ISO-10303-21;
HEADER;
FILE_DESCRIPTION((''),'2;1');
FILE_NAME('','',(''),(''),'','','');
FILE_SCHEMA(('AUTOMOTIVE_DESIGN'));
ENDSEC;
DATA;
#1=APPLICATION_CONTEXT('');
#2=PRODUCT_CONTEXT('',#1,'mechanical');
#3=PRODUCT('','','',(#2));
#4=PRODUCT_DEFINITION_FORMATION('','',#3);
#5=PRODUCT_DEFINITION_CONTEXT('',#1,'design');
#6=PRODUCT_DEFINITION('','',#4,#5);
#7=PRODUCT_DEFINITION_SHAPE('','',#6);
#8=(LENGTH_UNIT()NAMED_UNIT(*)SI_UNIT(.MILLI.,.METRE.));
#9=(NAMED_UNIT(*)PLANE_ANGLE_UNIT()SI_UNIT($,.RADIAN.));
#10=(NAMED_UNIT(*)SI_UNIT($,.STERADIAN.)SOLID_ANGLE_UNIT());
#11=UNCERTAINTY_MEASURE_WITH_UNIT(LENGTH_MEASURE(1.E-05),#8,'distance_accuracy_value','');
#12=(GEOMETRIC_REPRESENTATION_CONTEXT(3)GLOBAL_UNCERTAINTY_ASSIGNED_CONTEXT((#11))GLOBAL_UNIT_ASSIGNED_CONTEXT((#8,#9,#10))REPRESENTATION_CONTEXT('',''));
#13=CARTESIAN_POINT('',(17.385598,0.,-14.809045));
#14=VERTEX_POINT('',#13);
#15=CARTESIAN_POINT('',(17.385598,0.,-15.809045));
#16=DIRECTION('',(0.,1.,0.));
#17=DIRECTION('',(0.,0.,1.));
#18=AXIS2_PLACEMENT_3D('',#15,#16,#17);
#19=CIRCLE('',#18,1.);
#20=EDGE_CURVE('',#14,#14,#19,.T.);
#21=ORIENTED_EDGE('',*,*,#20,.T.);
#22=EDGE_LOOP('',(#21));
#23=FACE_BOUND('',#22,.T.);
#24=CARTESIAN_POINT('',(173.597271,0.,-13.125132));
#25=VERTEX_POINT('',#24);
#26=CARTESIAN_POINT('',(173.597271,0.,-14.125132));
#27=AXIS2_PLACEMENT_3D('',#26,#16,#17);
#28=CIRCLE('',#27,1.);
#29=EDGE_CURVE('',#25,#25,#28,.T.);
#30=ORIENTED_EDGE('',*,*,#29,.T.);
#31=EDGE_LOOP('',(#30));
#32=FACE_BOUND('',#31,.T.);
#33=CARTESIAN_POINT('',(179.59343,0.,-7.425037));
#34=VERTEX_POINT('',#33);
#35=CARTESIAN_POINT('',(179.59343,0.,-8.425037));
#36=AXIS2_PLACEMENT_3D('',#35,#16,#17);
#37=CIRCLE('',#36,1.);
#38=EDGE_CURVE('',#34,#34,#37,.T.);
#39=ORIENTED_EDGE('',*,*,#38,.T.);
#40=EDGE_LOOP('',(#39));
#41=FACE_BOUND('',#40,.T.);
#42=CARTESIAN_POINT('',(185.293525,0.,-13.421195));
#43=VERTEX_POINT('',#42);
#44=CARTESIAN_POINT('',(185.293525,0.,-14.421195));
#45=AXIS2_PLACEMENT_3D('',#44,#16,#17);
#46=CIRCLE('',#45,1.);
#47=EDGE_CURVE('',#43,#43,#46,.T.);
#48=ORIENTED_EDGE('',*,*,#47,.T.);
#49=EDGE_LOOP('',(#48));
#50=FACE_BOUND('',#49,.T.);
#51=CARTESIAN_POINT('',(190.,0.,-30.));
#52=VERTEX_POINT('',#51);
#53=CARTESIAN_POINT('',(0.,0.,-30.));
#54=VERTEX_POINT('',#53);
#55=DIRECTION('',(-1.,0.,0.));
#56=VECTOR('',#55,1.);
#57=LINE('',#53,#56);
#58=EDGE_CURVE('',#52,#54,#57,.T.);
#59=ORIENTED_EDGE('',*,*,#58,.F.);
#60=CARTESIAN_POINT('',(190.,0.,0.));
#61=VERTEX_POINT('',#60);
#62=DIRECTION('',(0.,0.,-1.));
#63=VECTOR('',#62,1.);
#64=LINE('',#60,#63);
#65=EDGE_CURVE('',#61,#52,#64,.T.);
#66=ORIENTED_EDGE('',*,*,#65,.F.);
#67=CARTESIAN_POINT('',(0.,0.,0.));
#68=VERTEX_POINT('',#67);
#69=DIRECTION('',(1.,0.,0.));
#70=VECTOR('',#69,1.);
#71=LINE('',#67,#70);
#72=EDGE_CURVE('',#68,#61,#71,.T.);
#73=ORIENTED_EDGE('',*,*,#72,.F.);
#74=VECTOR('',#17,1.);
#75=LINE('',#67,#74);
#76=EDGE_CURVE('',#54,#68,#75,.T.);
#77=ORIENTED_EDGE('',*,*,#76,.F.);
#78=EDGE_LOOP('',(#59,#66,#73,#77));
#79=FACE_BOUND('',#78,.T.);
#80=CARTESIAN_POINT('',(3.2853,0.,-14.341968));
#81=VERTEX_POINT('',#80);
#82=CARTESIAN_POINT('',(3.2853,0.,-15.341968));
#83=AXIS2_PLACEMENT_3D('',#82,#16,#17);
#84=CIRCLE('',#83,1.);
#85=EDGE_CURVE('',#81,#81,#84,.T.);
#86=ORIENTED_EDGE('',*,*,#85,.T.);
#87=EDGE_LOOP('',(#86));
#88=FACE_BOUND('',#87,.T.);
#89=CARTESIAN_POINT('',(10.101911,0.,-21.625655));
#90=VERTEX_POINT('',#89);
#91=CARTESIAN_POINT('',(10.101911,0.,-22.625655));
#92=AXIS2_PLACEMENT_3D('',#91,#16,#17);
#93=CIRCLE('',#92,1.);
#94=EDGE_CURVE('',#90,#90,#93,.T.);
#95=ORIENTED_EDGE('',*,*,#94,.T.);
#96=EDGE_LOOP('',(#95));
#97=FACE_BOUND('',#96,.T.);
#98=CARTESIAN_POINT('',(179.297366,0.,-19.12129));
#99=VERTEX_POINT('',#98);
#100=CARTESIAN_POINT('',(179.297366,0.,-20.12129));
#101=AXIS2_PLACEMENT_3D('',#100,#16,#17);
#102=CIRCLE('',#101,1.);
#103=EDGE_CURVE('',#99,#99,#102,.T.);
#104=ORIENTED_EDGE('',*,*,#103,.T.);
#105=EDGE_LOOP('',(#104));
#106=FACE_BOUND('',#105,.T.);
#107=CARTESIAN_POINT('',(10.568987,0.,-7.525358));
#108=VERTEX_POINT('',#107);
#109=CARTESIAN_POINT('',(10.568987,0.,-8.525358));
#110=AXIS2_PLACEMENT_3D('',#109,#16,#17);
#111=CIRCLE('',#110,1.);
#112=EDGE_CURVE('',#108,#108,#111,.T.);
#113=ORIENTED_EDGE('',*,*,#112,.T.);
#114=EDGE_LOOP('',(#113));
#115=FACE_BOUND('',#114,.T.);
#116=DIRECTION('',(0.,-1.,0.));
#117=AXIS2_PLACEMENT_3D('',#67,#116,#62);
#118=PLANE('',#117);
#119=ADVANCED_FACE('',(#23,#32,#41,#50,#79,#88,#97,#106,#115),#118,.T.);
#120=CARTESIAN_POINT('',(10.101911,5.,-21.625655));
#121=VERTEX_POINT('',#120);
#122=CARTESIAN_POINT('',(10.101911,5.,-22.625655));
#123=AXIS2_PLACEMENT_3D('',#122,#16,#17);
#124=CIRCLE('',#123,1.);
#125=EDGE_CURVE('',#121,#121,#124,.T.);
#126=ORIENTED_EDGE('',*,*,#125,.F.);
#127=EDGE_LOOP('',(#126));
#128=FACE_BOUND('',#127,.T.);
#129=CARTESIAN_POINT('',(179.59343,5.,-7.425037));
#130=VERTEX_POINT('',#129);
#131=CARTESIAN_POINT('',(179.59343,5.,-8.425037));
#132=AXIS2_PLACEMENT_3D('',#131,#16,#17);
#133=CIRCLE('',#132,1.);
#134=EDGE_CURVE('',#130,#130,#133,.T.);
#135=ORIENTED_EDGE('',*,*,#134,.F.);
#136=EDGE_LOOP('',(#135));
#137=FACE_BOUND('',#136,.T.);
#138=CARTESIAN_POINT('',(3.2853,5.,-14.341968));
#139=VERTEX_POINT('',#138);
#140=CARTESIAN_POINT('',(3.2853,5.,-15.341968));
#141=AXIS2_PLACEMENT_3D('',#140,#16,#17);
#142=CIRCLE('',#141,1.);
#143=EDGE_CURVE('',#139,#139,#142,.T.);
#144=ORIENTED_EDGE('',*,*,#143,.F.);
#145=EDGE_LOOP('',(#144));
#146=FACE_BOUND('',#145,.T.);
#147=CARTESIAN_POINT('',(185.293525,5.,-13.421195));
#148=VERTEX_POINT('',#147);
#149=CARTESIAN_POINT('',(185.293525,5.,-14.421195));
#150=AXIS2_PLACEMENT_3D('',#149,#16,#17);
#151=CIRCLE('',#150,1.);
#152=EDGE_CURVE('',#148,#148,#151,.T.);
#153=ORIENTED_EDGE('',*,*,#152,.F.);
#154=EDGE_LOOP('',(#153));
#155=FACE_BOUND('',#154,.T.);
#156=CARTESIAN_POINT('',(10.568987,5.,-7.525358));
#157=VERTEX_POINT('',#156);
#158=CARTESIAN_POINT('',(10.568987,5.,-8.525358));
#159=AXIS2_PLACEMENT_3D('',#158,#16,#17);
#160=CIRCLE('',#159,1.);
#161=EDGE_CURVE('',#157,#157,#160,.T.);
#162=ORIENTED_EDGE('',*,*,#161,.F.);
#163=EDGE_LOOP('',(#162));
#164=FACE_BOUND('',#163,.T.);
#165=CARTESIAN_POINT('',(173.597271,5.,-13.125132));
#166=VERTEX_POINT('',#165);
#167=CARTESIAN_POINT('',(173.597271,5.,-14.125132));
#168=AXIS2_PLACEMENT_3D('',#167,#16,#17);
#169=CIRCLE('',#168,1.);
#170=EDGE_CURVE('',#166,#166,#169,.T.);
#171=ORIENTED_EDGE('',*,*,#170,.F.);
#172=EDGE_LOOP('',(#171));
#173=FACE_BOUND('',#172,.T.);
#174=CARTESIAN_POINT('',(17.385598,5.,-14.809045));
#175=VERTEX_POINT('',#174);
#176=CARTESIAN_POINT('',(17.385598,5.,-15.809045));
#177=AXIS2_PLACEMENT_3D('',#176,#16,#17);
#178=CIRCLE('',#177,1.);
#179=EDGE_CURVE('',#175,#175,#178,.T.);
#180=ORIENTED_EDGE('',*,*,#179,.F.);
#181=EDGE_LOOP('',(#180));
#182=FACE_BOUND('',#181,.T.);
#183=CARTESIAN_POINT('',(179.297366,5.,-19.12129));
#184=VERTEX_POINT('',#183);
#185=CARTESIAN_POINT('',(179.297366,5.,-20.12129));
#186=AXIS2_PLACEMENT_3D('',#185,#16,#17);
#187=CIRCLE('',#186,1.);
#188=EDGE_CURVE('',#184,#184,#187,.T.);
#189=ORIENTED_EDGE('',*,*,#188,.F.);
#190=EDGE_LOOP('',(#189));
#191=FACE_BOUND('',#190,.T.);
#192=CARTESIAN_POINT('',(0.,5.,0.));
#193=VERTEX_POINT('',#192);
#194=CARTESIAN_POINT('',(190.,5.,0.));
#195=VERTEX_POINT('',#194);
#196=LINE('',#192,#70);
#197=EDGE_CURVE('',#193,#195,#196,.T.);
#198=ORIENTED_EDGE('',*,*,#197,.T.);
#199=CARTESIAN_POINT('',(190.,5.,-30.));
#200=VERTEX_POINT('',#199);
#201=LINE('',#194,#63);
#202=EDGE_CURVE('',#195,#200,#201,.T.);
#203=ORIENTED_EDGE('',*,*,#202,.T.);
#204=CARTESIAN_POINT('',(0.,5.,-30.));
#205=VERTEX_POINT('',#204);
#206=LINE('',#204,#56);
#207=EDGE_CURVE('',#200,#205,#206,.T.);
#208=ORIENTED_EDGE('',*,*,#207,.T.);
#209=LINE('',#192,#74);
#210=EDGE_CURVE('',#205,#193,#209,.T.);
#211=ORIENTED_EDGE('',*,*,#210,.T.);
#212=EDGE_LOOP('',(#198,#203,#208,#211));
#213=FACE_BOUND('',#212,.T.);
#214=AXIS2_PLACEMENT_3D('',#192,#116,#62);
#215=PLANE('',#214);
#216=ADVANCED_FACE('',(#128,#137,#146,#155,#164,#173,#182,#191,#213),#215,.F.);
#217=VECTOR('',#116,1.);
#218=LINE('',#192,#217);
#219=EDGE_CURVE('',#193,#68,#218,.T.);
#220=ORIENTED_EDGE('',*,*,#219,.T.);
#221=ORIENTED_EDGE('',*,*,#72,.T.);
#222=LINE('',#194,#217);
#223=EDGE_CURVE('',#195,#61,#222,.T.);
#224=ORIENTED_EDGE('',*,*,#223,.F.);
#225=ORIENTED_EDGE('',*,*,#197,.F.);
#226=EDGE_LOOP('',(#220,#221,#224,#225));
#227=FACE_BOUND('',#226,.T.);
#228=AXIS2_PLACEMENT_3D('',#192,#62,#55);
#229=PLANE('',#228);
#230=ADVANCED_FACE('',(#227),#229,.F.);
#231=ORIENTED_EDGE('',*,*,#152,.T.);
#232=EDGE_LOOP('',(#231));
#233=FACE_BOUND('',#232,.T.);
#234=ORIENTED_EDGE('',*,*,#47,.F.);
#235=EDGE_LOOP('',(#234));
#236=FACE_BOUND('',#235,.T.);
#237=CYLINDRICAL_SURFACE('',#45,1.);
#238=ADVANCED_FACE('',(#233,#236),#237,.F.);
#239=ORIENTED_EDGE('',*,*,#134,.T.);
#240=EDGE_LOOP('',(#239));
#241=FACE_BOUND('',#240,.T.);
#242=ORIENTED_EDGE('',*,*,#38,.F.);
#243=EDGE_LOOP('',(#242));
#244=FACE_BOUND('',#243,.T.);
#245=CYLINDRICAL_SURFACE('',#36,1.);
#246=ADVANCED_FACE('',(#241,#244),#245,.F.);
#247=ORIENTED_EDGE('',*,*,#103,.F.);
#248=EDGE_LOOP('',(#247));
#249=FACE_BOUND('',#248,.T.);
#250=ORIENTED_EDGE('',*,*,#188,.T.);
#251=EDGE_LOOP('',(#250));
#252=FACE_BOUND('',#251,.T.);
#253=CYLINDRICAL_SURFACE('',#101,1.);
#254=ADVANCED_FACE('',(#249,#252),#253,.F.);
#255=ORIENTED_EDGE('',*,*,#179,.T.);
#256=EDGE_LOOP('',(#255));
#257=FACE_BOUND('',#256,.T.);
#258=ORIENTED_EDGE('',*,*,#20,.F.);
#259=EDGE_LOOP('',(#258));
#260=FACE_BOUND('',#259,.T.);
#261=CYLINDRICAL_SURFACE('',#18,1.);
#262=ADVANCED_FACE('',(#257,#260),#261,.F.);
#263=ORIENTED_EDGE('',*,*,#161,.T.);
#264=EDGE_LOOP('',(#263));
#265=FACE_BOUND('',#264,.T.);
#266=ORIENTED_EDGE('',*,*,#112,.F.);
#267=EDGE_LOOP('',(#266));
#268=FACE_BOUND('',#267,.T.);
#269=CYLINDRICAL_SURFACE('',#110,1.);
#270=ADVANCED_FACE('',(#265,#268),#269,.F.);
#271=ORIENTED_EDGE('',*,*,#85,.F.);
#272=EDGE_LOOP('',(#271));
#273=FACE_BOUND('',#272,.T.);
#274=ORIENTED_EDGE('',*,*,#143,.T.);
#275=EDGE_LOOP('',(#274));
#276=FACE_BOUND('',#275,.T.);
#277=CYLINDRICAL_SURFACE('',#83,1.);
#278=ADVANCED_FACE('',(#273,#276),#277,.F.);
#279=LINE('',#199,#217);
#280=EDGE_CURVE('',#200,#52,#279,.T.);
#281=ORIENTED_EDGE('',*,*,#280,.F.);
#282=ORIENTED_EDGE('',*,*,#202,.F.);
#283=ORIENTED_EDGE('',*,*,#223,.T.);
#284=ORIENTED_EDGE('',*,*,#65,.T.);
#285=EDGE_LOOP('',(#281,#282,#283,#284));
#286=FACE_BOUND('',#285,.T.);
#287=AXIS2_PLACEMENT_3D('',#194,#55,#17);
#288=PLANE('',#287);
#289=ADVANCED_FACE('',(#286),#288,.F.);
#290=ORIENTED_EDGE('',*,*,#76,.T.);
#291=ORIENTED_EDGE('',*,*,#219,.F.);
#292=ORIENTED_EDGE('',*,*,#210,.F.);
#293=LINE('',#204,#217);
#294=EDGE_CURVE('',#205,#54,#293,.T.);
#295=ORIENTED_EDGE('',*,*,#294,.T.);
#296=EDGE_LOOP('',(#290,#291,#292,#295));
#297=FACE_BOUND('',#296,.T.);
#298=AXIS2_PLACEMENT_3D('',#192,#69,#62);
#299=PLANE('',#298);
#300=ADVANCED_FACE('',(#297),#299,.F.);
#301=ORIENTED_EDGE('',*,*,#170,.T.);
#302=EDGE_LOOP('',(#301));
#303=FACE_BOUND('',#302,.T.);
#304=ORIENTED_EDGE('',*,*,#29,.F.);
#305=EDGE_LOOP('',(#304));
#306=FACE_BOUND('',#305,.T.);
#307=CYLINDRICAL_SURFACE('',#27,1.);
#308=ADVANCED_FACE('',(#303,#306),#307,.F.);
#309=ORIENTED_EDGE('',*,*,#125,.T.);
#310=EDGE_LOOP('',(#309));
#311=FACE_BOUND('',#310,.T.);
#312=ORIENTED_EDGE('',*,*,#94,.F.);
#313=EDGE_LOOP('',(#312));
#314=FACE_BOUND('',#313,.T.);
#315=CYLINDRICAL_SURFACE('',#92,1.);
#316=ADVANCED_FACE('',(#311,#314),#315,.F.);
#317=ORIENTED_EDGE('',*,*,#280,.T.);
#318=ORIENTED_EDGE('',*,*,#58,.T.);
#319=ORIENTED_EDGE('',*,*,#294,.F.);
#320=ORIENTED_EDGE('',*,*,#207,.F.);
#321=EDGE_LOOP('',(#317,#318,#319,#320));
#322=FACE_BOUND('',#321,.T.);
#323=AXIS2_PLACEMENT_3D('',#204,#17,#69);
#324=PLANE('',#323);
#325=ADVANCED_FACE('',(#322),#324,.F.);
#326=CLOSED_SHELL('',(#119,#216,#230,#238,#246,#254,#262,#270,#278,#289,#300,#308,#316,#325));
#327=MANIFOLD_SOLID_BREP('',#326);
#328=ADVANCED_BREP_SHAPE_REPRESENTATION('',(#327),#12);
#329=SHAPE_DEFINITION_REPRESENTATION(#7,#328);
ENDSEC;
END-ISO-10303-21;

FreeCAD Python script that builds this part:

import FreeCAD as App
import Part
import Sketcher

V = App.Vector
Q = App.Units.Quantity


def add_polygon(sketch, points):
    """Adds a closed chain of lines whose ends are joined by coincident constraints."""
    first, n = sketch.GeometryCount, len(points)
    for a, b in zip(points, points[1:] + points[:1]):
        sketch.addGeometry(Part.LineSegment(App.Vector(*a, 0), App.Vector(*b, 0)), False)
    for i in range(n):
        sketch.addConstraint(Sketcher.Constraint("Coincident", first + i, 2, first + (i + 1) % n, 1))

doc = App.newDocument("Part")
body = doc.addObject("PartDesign::Body", "Body")

sketch1 = body.newObject("Sketcher::SketchObject", "Sketch")
sketch1.AttachmentSupport = (doc.getObject("XZ_Plane"), [""])
sketch1.MapMode = "FlatFace"
add_polygon(sketch1, [(0, -30), (0, 0), (190, 0), (190, -30)])
sketch1.addConstraint([
    Sketcher.Constraint("Vertical", 0),
    Sketcher.Constraint("Horizontal", 1),
    Sketcher.Constraint("Vertical", 2),
    Sketcher.Constraint("Horizontal", 3),
    Sketcher.Constraint("Coincident", 0, 2, -1, 1),
    Sketcher.Constraint("DistanceX", 1, 1, 1, 2, Q("190 mm")),
    Sketcher.Constraint("DistanceY", 0, 1, 0, 2, Q("30 mm")),
])
pad1 = body.newObject("PartDesign::Pad", "Pad")
pad1.Profile = sketch1
pad1.Length = 5
pad1.Reversed = True

sketch2 = body.newObject("Sketcher::SketchObject", "Sketch001")
sketch2.AttachmentSupport = (doc.getObject("XZ_Plane"), [""])
sketch2.MapMode = "FlatFace"
sketch2.AttachmentOffset = App.Placement(V(0, 0, -5), App.Rotation())
sketch2.addGeometry([
    Part.Circle(V(185.3, -14.4, 0), V(0, 0, 1), 1),
    Part.Circle(V(179.6, -8.4, 0), V(0, 0, 1), 1),
    Part.Circle(V(173.6, -14.1, 0), V(0, 0, 1), 1),
    Part.Circle(V(179.3, -20.1, 0), V(0, 0, 1), 1),
    Part.Circle(V(3.3, -15.3, 0), V(0, 0, 1), 1),
    Part.Circle(V(10.1, -22.6, 0), V(0, 0, 1), 1),
    Part.Circle(V(17.4, -15.8, 0), V(0, 0, 1), 1),
    Part.Circle(V(10.6, -8.5, 0), V(0, 0, 1), 1),
], False)
sketch2.addConstraint([
    Sketcher.Constraint("Equal", 0, 1),
    Sketcher.Constraint("Equal", 1, 2),
    Sketcher.Constraint("Equal", 2, 3),
    Sketcher.Constraint("Equal", 3, 4),
    Sketcher.Constraint("Equal", 4, 5),
    Sketcher.Constraint("Equal", 5, 6),
    Sketcher.Constraint("Equal", 6, 7),
    Sketcher.Constraint("Diameter", 0, Q("2 mm")),
    Sketcher.Constraint("DistanceX", -1, 1, 4, 3, Q("3.2853 mm")),
    Sketcher.Constraint("DistanceX", -1, 1, 1, 3, Q("179.59343 mm")),
    Sketcher.Constraint("DistanceX", -1, 1, 2, 3, Q("173.597271 mm")),
    Sketcher.Constraint("DistanceY", 2, 3, -1, 1, Q("14.125132 mm")),
    Sketcher.Constraint("DistanceY", 3, 3, -1, 1, Q("20.12129 mm")),
    Sketcher.Constraint("DistanceX", -1, 1, 5, 3, Q("10.101911 mm")),
    Sketcher.Constraint("DistanceY", 0, 3, 1, 3, Q("5.996159 mm")),
    Sketcher.Constraint("DistanceX", 3, 3, 0, 3, Q("5.996159 mm")),
    Sketcher.Constraint("DistanceY", 4, 3, 1, 3, Q("6.916931 mm")),
    Sketcher.Constraint("DistanceY", 5, 3, 1, 3, Q("14.200618 mm")),
    Sketcher.Constraint("DistanceY", 5, 3, 6, 3, Q("6.81661 mm")),
    Sketcher.Constraint("DistanceX", 6, 3, 3, 3, Q("161.911769 mm")),
    Sketcher.Constraint("DistanceY", 4, 3, 7, 3, Q("6.81661 mm")),
    Sketcher.Constraint("DistanceX", 7, 3, 6, 3, Q("6.81661 mm")),
    Sketcher.Constraint("DistanceX", -1, 1, 0, 3, Q("185.293525 mm")),
    Sketcher.Constraint("DistanceY", 0, 3, -1, 1, Q("14.421195 mm")),
])
pocket1 = body.newObject("PartDesign::Pocket", "Pocket")
pocket1.Profile = sketch2
pocket1.Length = 5
pocket1.Reversed = True

doc.recompute()
